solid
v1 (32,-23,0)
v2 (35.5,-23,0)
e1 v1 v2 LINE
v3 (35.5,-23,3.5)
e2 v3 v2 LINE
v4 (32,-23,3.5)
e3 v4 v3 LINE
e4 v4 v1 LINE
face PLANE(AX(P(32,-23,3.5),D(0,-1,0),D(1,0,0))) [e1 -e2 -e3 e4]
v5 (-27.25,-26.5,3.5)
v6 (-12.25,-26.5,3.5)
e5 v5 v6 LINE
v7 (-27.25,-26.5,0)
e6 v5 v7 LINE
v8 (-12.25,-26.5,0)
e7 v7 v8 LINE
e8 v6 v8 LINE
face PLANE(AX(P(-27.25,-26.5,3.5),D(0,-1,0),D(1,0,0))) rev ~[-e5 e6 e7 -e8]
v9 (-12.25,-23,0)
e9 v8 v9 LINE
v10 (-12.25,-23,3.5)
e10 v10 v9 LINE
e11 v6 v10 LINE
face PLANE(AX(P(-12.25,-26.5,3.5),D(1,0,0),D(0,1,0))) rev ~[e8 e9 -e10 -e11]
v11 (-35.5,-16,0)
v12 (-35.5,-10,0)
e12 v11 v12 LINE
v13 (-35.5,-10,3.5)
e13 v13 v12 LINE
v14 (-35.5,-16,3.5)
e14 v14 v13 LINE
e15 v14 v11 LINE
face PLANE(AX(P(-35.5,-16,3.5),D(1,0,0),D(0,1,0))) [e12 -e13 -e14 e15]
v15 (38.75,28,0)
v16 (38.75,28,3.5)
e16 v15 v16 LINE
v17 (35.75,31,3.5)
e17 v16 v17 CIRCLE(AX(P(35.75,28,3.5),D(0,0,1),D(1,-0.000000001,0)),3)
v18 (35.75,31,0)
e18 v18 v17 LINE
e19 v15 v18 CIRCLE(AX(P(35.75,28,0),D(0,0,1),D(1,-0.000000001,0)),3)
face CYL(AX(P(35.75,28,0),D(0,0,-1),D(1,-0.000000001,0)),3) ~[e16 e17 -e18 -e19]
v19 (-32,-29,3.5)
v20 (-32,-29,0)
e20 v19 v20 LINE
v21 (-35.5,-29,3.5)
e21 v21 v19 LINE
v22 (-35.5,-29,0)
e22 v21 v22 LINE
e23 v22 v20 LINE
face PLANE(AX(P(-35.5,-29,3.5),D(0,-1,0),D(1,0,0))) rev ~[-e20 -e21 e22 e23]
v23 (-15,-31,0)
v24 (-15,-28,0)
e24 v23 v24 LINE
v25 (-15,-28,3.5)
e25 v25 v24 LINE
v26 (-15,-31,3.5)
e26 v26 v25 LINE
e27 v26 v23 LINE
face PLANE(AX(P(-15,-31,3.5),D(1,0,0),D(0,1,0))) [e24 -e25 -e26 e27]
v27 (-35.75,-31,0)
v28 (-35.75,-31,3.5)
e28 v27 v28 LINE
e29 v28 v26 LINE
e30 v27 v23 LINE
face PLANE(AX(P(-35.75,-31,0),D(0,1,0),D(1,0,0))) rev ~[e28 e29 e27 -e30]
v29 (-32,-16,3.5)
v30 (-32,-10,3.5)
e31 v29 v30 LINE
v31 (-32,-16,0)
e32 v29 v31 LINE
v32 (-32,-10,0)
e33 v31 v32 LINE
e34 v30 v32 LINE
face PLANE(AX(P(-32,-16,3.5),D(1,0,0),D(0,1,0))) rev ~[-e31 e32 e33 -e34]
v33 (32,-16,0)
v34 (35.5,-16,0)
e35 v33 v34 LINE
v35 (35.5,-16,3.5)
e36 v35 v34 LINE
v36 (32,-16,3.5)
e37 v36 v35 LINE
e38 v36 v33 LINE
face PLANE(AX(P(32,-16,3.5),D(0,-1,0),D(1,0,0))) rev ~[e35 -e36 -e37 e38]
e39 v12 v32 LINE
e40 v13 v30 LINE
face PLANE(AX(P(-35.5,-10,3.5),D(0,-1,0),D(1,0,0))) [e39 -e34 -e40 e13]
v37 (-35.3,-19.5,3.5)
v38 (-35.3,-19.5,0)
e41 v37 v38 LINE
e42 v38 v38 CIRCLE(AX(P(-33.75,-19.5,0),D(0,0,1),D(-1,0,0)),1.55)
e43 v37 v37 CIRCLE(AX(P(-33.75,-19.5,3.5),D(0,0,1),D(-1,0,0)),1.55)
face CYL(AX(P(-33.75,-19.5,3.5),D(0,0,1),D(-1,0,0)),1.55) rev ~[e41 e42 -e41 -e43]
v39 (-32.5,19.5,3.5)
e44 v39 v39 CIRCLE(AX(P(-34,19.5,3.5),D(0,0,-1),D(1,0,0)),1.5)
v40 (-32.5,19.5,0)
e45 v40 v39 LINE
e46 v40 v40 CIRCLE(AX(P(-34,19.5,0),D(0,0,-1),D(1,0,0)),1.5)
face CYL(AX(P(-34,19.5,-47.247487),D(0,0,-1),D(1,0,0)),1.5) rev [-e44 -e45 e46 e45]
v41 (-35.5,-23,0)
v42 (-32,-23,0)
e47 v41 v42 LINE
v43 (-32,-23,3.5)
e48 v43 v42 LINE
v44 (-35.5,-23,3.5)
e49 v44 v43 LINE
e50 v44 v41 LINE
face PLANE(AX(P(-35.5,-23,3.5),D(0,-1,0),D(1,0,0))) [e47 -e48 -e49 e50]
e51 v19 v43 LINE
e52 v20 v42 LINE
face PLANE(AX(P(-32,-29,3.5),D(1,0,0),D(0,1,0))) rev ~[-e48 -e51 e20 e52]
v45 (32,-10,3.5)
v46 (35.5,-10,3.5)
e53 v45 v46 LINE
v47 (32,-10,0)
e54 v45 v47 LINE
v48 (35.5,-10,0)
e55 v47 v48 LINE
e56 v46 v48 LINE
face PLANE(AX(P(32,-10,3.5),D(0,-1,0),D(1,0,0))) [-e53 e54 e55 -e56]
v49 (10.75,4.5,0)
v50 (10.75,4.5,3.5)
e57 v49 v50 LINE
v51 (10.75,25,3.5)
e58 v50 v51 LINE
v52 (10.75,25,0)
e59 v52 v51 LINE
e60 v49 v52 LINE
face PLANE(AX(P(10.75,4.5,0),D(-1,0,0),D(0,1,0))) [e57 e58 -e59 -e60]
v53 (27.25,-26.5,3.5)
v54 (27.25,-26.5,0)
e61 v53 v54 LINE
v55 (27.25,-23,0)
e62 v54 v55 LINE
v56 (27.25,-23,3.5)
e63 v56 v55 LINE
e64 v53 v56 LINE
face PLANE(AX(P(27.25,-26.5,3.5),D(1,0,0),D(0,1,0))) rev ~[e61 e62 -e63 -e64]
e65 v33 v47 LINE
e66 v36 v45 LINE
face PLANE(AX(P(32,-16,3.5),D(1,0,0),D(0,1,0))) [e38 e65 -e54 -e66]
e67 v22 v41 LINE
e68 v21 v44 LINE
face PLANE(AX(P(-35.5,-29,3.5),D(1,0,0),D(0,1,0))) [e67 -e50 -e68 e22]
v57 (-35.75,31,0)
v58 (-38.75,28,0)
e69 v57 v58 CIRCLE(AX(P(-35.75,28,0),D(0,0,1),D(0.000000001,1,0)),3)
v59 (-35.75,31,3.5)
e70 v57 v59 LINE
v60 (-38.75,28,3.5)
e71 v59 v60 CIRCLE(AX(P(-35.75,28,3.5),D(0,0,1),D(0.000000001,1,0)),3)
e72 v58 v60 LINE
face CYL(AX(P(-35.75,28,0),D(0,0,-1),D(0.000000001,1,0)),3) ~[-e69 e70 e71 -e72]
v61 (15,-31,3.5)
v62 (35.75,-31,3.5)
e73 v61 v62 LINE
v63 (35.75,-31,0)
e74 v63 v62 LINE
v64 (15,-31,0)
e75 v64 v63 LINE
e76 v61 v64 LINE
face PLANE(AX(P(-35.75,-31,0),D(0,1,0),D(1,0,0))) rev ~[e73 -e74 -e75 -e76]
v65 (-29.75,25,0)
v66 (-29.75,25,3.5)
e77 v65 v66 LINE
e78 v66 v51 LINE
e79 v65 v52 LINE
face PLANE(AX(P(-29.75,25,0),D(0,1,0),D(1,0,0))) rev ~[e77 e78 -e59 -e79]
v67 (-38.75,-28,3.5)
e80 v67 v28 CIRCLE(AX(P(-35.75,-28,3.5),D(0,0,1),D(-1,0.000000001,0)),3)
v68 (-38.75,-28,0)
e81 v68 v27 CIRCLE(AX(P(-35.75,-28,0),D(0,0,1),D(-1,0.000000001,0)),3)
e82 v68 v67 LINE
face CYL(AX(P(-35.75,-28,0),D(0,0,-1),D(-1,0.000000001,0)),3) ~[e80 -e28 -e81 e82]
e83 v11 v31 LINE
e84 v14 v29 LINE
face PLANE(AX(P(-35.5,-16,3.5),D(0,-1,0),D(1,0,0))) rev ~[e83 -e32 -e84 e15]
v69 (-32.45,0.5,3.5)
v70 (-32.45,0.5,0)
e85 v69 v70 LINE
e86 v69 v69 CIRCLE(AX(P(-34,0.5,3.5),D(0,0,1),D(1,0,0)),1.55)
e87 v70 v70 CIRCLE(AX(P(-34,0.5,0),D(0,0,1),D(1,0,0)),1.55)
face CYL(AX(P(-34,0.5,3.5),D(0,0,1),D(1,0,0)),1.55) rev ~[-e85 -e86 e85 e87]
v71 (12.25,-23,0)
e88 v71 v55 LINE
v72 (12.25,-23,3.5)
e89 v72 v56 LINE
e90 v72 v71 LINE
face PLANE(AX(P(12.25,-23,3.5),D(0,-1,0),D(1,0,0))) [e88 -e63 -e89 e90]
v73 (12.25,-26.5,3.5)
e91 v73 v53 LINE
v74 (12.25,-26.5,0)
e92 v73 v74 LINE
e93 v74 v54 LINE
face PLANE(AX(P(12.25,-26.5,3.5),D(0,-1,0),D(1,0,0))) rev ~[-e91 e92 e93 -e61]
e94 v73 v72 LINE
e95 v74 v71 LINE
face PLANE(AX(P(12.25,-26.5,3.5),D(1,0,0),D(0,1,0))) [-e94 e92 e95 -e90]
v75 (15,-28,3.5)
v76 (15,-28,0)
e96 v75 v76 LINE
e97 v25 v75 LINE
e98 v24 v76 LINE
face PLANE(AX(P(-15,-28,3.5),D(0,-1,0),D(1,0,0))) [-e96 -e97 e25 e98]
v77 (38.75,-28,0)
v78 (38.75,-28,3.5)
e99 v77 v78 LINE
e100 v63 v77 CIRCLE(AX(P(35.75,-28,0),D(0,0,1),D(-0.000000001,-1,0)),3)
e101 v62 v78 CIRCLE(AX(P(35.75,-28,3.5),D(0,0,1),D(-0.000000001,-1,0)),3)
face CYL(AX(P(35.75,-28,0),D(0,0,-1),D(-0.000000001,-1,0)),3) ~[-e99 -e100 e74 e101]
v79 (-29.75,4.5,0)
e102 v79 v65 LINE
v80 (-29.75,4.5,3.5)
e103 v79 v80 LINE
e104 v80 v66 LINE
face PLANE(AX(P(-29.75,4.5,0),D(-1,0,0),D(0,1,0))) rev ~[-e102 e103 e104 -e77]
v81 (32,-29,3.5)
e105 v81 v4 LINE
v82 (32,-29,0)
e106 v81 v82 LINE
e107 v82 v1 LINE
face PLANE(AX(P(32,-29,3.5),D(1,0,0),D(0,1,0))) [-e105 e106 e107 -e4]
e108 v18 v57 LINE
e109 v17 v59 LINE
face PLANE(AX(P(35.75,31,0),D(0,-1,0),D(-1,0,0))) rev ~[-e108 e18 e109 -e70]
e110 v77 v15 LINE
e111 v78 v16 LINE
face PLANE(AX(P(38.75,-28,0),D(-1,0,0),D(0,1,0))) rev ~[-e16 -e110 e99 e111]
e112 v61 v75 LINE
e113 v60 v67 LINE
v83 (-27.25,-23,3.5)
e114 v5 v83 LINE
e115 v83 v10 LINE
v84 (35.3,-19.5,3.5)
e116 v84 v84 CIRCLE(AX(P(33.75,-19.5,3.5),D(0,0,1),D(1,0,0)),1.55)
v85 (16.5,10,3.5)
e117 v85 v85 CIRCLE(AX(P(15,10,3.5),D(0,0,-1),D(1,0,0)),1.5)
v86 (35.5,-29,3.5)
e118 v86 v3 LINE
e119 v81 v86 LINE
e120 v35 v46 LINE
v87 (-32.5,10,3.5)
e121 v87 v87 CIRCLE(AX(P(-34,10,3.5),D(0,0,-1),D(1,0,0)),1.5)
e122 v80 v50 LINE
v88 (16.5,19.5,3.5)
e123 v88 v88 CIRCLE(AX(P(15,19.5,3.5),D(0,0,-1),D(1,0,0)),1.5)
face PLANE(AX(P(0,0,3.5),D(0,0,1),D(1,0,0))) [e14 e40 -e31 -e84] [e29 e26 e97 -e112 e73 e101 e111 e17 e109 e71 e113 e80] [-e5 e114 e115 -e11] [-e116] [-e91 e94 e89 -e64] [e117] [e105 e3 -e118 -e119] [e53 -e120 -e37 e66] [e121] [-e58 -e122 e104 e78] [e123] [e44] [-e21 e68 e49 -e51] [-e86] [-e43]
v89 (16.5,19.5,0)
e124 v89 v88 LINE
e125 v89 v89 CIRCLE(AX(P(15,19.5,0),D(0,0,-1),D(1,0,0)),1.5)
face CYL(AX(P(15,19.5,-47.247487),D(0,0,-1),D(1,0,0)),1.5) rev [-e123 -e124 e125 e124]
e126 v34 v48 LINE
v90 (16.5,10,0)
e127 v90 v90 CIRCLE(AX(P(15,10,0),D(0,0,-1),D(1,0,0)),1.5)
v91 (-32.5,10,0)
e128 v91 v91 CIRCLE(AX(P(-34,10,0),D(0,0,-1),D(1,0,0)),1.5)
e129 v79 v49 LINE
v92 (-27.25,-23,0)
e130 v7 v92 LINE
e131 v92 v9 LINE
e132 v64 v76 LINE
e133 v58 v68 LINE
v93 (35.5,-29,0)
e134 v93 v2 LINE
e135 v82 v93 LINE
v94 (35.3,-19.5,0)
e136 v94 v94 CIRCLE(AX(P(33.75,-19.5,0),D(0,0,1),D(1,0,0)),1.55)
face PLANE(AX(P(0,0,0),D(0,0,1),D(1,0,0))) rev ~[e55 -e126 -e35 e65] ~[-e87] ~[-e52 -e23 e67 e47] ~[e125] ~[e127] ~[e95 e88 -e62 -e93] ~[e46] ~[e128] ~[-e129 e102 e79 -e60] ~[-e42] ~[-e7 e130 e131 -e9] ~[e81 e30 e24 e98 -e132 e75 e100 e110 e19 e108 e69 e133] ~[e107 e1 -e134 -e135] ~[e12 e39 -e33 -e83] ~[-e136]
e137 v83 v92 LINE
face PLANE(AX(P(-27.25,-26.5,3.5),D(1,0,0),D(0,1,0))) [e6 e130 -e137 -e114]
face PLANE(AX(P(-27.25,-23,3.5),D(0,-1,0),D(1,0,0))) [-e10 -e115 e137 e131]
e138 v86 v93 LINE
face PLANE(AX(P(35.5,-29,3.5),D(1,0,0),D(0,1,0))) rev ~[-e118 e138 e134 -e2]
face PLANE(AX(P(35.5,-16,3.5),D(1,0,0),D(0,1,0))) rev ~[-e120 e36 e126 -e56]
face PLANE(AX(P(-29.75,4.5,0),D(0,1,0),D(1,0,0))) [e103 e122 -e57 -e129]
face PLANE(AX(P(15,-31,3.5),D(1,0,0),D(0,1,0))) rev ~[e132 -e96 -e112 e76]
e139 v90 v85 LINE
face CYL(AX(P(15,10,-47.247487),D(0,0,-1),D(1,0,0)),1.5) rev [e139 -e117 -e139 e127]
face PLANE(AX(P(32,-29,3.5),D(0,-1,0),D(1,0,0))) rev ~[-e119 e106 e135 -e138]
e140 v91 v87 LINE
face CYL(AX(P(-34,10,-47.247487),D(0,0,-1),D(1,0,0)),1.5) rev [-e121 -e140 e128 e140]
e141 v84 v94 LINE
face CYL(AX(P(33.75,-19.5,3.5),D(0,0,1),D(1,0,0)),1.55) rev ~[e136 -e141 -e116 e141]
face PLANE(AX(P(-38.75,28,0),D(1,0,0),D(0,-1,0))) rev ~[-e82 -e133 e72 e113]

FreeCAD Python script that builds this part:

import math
import FreeCAD as App
import Part
import Sketcher
from FreeCAD import Vector


def add_polygon(sketch, points):
    """Adds a closed chain of lines whose ends are joined by coincident constraints."""
    first, n = sketch.GeometryCount, len(points)
    for a, b in zip(points, points[1:] + points[:1]):
        sketch.addGeometry(Part.LineSegment(App.Vector(*a, 0), App.Vector(*b, 0)), False)
    for i in range(n):
        sketch.addConstraint(Sketcher.Constraint("Coincident", first + i, 2, first + (i + 1) % n, 1))

doc = App.newDocument("Part")
body = doc.addObject("PartDesign::Body", "Body")

sketch1 = body.newObject("Sketcher::SketchObject", "Sketch")
sketch1.AttachmentSupport = (doc.getObject("XY_Plane"), [""])
sketch1.MapMode = "FlatFace"
sketch1.addGeometry(Part.LineSegment(Vector(-35.8, -31, 0), Vector(35.8, -31, 0)), False)
sketch1.addGeometry(Part.ArcOfCircle(Part.Circle(Vector(35.8, -28, 0), Vector(0, 0, 1), 3), math.radians(-90), math.radians(0)), False)
sketch1.addGeometry(Part.LineSegment(Vector(38.8, -28, 0), Vector(38.8, 28, 0)), False)
sketch1.addGeometry(Part.ArcOfCircle(Part.Circle(Vector(35.8, 28, 0), Vector(0, 0, 1), 3), math.radians(0), math.radians(90)), False)
sketch1.addGeometry(Part.LineSegment(Vector(35.8, 31, 0), Vector(-35.8, 31, 0)), False)
sketch1.addGeometry(Part.ArcOfCircle(Part.Circle(Vector(-35.8, 28, 0), Vector(0, 0, 1), 3), math.radians(90), math.radians(180)), False)
sketch1.addGeometry(Part.LineSegment(Vector(-38.8, 28, 0), Vector(-38.8, -28, 0)), False)
sketch1.addGeometry(Part.ArcOfCircle(Part.Circle(Vector(-35.8, -28, 0), Vector(0, 0, 1), 3), math.radians(180), math.radians(270)), False)
add_polygon(sketch1, [(10.8, 4.5), (-29.8, 4.5), (-29.8, 25), (10.8, 25)])
sketch1.addConstraint(Sketcher.Constraint("Tangent", 0, 2, 1, 1))
sketch1.addConstraint(Sketcher.Constraint("Tangent", 1, 2, 2, 1))
sketch1.addConstraint(Sketcher.Constraint("Tangent", 2, 2, 3, 1))
sketch1.addConstraint(Sketcher.Constraint("Tangent", 3, 2, 4, 1))
sketch1.addConstraint(Sketcher.Constraint("Tangent", 4, 2, 5, 1))
sketch1.addConstraint(Sketcher.Constraint("Tangent", 5, 2, 6, 1))
sketch1.addConstraint(Sketcher.Constraint("Tangent", 6, 2, 7, 1))
sketch1.addConstraint(Sketcher.Constraint("Tangent", 7, 2, 0, 1))
sketch1.addConstraint(Sketcher.Constraint("Horizontal", 0))
sketch1.addConstraint(Sketcher.Constraint("Vertical", 2))
sketch1.addConstraint(Sketcher.Constraint("Horizontal", 4))
sketch1.addConstraint(Sketcher.Constraint("Vertical", 6))
sketch1.addConstraint(Sketcher.Constraint("Horizontal", 8))
sketch1.addConstraint(Sketcher.Constraint("Vertical", 9))
sketch1.addConstraint(Sketcher.Constraint("Horizontal", 10))
sketch1.addConstraint(Sketcher.Constraint("Vertical", 11))
sketch1.addConstraint(Sketcher.Constraint("Equal", 1, 3))
sketch1.addConstraint(Sketcher.Constraint("Equal", 3, 5))
sketch1.addConstraint(Sketcher.Constraint("Equal", 5, 7))
sketch1.addConstraint(Sketcher.Constraint("Symmetric", 1, 3, 5, 3, -1, 1))
sketch1.addConstraint(Sketcher.Constraint("Radius", 1, 3.0))
sketch1.addConstraint(Sketcher.Constraint("DistanceY", 2, 1, 2, 2, 56.0))
sketch1.addConstraint(Sketcher.Constraint("DistanceX", 0, 1, 0, 2, 71.5))
sketch1.addConstraint(Sketcher.Constraint("DistanceX", 8, 2, 8, 1, 40.5))
sketch1.addConstraint(Sketcher.Constraint("DistanceY", 9, 1, 9, 2, 20.5))
sketch1.addConstraint(Sketcher.Constraint("DistanceY", -1, 1, 9, 2, 25.0))
sketch1.addConstraint(Sketcher.Constraint("DistanceX", 5, 3, 8, 2, 6.0))
pad1 = body.newObject("PartDesign::Pad", "Pad")
pad1.Profile = sketch1
pad1.Length = 3.5

sketch2 = body.newObject("Sketcher::SketchObject", "Sketch001")
sketch2.AttachmentSupport = (doc.getObject("XY_Plane"), [""])
sketch2.MapMode = "FlatFace"
sketch2.AttachmentOffset = App.Placement(Vector(0, 0, 3.5), App.Rotation())
sketch2.addGeometry(Part.Circle(Vector(33.8, -19.5, 0), Vector(0, 0, 1), 1.6), False)
sketch2.addGeometry(Part.Circle(Vector(-33.8, -19.5, 0), Vector(0, 0, 1), 1.6), False)
add_polygon(sketch2, [(32, -10), (32, -16), (35.5, -16), (35.5, -10)])
add_polygon(sketch2, [(32, -23), (32, -29), (35.5, -29), (35.5, -23)])
add_polygon(sketch2, [(-35.5, -23), (-35.5, -29), (-32, -29), (-32, -23)])
add_polygon(sketch2, [(-35.5, -10), (-35.5, -16), (-32, -16), (-32, -10)])
sketch2.addConstraint(Sketcher.Constraint("Vertical", 2))
sketch2.addConstraint(Sketcher.Constraint("Horizontal", 3))
sketch2.addConstraint(Sketcher.Constraint("Vertical", 4))
sketch2.addConstraint(Sketcher.Constraint("Horizontal", 5))
sketch2.addConstraint(Sketcher.Constraint("Vertical", 6))
sketch2.addConstraint(Sketcher.Constraint("Horizontal", 7))
sketch2.addConstraint(Sketcher.Constraint("Vertical", 8))
sketch2.addConstraint(Sketcher.Constraint("Horizontal", 9))
sketch2.addConstraint(Sketcher.Constraint("Vertical", 10))
sketch2.addConstraint(Sketcher.Constraint("Horizontal", 11))
sketch2.addConstraint(Sketcher.Constraint("Vertical", 12))
sketch2.addConstraint(Sketcher.Constraint("Horizontal", 13))
sketch2.addConstraint(Sketcher.Constraint("Vertical", 14))
sketch2.addConstraint(Sketcher.Constraint("Horizontal", 15))
sketch2.addConstraint(Sketcher.Constraint("Vertical", 16))
sketch2.addConstraint(Sketcher.Constraint("Horizontal", 17))
sketch2.addConstraint(Sketcher.Constraint("Equal", 0, 1))
sketch2.addConstraint(Sketcher.Constraint("Symmetric", 0, 3, 1, 3, -2))
sketch2.addConstraint(Sketcher.Constraint("Symmetric", 7, 2, 10, 2, -2))
sketch2.addConstraint(Sketcher.Constraint("Symmetric", 9, 2, 12, 2, -2))
sketch2.addConstraint(Sketcher.Constraint("Symmetric", 3, 2, 14, 2, -2))
sketch2.addConstraint(Sketcher.Constraint("Symmetric", 5, 2, 16, 2, -2))
sketch2.addConstraint(Sketcher.Constraint("Vertical", 5, 2, 6, 2))
sketch2.addConstraint(Sketcher.Constraint("Vertical", 4, 2, 7, 2))
sketch2.addConstraint(Sketcher.Constraint("Equal", 4, 6))
sketch2.addConstraint(Sketcher.Constraint("Diameter", 0, 3.1))
sketch2.addConstraint(Sketcher.Constraint("DistanceY", 2, 2, 2, 1, 6.0))
sketch2.addConstraint(Sketcher.Constraint("DistanceX", 3, 1, 3, 2, 3.5))
sketch2.addConstraint(Sketcher.Constraint("DistanceX", -1, 1, 2, 2, 32.0))
sketch2.addConstraint(Sketcher.Constraint("DistanceY", 2, 2, -1, 1, 16.0))
sketch2.addConstraint(Sketcher.Constraint("DistanceY", 6, 2, -1, 1, 29.0))
sketch2.addConstraint(Sketcher.Constraint("DistanceY", 0, 3, -1, 1, 19.5))
sketch2.addConstraint(Sketcher.Constraint("DistanceX", 1, 3, 0, 3, 67.5))
pocket1 = body.newObject("PartDesign::Pocket", "Pocket")
pocket1.Profile = sketch2
pocket1.Type = "ThroughAll"

sketch3 = body.newObject("Sketcher::SketchObject", "Sketch002")
sketch3.AttachmentSupport = (doc.getObject("XY_Plane"), [""])
sketch3.MapMode = "FlatFace"
sketch3.AttachmentOffset = App.Placement(Vector(0, 0, 3.5), App.Rotation())
add_polygon(sketch3, [(-27.2, -23), (-27.2, -26.5), (-12.2, -26.5), (-12.2, -23)])
add_polygon(sketch3, [(12.2, -23), (12.2, -26.5), (27.2, -26.5), (27.2, -23)])
sketch3.addConstraint(Sketcher.Constraint("Vertical", 0))
sketch3.addConstraint(Sketcher.Constraint("Horizontal", 1))
sketch3.addConstraint(Sketcher.Constraint("Vertical", 2))
sketch3.addConstraint(Sketcher.Constraint("Horizontal", 3))
sketch3.addConstraint(Sketcher.Constraint("Vertical", 4))
sketch3.addConstraint(Sketcher.Constraint("Horizontal", 5))
sketch3.addConstraint(Sketcher.Constraint("Vertical", 6))
sketch3.addConstraint(Sketcher.Constraint("Horizontal", 7))
sketch3.addConstraint(Sketcher.Constraint("Symmetric", 1, 2, 4, 2, -2))
sketch3.addConstraint(Sketcher.Constraint("Symmetric", 3, 2, 6, 2, -2))
sketch3.addConstraint(Sketcher.Constraint("DistanceX", 1, 1, 1, 2, 15.0))
sketch3.addConstraint(Sketcher.Constraint("DistanceY", 0, 2, 0, 1, 3.5))
sketch3.addConstraint(Sketcher.Constraint("DistanceY", 2, 2, -1, 1, 23.0))
sketch3.addConstraint(Sketcher.Constraint("DistanceX", 1, 2, 4, 2, 24.5))
pocket2 = body.newObject("PartDesign::Pocket", "Pocket001")
pocket2.Profile = sketch3
pocket2.Type = "ThroughAll"

sketch4 = body.newObject("Sketcher::SketchObject", "Sketch003")
sketch4.AttachmentSupport = (doc.getObject("XY_Plane"), [""])
sketch4.MapMode = "FlatFace"
sketch4.AttachmentOffset = App.Placement(Vector(0, 0, 3.5), App.Rotation())
sketch4.addGeometry(Part.Circle(Vector(15, 19.5, 0), Vector(0, 0, 1), 1.5), False)
sketch4.addGeometry(Part.Circle(Vector(15, 10, 0), Vector(0, 0, 1), 1.5), False)
sketch4.addGeometry(Part.Circle(Vector(-34, 10, 0), Vector(0, 0, 1), 1.5), False)
sketch4.addGeometry(Part.Circle(Vector(-34, 19.5, 0), Vector(0, 0, 1), 1.5), False)
sketch4.addConstraint(Sketcher.Constraint("Equal", 0, 1))
sketch4.addConstraint(Sketcher.Constraint("Equal", 1, 2))
sketch4.addConstraint(Sketcher.Constraint("Equal", 2, 3))
sketch4.addConstraint(Sketcher.Constraint("Horizontal", 1, 3, 2, 3))
sketch4.addConstraint(Sketcher.Constraint("Horizontal", 0, 3, 3, 3))
sketch4.addConstraint(Sketcher.Constraint("Vertical", 0, 3, 1, 3))
sketch4.addConstraint(Sketcher.Constraint("Vertical", 2, 3, 3, 3))
sketch4.addConstraint(Sketcher.Constraint("Diameter", 0, 3.0))
sketch4.addConstraint(Sketcher.Constraint("DistanceX", -1, 1, 0, 3, 15.0))
sketch4.addConstraint(Sketcher.Constraint("DistanceY", -1, 1, 1, 3, 10.0))
sketch4.addConstraint(Sketcher.Constraint("DistanceX", 2, 3, -1, 1, 34.0))
sketch4.addConstraint(Sketcher.Constraint("DistanceY", -1, 1, 0, 3, 19.5))
pocket3 = body.newObject("PartDesign::Pocket", "Pocket002")
pocket3.Profile = sketch4
pocket3.Type = "ThroughAll"
pocket3.Midplane = True

sketch5 = body.newObject("Sketcher::SketchObject", "Sketch004")
sketch5.AttachmentSupport = (doc.getObject("XY_Plane"), [""])
sketch5.MapMode = "FlatFace"
sketch5.AttachmentOffset = App.Placement(Vector(0, 0, 3.5), App.Rotation())
sketch5.addGeometry(Part.Circle(Vector(-34, 0.5, 0), Vector(0, 0, 1), 1.6), False)
sketch5.addConstraint(Sketcher.Constraint("Diameter", 0, 3.1))
sketch5.addConstraint(Sketcher.Constraint("DistanceX", 0, 3, -1, 1, 34.0))
sketch5.addConstraint(Sketcher.Constraint("DistanceY", -1, 1, 0, 3, 0.5))
pocket4 = body.newObject("PartDesign::Pocket", "Pocket003")
pocket4.Profile = sketch5
pocket4.Type = "UpToFirst"

sketch6 = body.newObject("Sketcher::SketchObject", "Sketch005")
sketch6.AttachmentSupport = (doc.getObject("XY_Plane"), [""])
sketch6.MapMode = "FlatFace"
sketch6.AttachmentOffset = App.Placement(Vector(0, 0, 3.5), App.Rotation())
add_polygon(sketch6, [(-15, -28), (-15, -31), (15, -31), (15, -28)])
sketch6.addConstraint(Sketcher.Constraint("Vertical", 0))
sketch6.addConstraint(Sketcher.Constraint("Horizontal", 1))
sketch6.addConstraint(Sketcher.Constraint("Vertical", 2))
sketch6.addConstraint(Sketcher.Constraint("Horizontal", 3))
sketch6.addConstraint(Sketcher.Constraint("DistanceX", 1, 1, 1, 2, 30.0))
sketch6.addConstraint(Sketcher.Constraint("DistanceY", 0, 2, 0, 1, 3.0))
sketch6.addConstraint(Sketcher.Constraint("DistanceX", 0, 2, -1, 1, 15.0))
sketch6.addConstraint(Sketcher.Constraint("DistanceY", 0, 2, -1, 1, 31.0))
pocket5 = body.newObject("PartDesign::Pocket", "Pocket004")
pocket5.Profile = sketch6
pocket5.Length = 10

doc.recompute()
